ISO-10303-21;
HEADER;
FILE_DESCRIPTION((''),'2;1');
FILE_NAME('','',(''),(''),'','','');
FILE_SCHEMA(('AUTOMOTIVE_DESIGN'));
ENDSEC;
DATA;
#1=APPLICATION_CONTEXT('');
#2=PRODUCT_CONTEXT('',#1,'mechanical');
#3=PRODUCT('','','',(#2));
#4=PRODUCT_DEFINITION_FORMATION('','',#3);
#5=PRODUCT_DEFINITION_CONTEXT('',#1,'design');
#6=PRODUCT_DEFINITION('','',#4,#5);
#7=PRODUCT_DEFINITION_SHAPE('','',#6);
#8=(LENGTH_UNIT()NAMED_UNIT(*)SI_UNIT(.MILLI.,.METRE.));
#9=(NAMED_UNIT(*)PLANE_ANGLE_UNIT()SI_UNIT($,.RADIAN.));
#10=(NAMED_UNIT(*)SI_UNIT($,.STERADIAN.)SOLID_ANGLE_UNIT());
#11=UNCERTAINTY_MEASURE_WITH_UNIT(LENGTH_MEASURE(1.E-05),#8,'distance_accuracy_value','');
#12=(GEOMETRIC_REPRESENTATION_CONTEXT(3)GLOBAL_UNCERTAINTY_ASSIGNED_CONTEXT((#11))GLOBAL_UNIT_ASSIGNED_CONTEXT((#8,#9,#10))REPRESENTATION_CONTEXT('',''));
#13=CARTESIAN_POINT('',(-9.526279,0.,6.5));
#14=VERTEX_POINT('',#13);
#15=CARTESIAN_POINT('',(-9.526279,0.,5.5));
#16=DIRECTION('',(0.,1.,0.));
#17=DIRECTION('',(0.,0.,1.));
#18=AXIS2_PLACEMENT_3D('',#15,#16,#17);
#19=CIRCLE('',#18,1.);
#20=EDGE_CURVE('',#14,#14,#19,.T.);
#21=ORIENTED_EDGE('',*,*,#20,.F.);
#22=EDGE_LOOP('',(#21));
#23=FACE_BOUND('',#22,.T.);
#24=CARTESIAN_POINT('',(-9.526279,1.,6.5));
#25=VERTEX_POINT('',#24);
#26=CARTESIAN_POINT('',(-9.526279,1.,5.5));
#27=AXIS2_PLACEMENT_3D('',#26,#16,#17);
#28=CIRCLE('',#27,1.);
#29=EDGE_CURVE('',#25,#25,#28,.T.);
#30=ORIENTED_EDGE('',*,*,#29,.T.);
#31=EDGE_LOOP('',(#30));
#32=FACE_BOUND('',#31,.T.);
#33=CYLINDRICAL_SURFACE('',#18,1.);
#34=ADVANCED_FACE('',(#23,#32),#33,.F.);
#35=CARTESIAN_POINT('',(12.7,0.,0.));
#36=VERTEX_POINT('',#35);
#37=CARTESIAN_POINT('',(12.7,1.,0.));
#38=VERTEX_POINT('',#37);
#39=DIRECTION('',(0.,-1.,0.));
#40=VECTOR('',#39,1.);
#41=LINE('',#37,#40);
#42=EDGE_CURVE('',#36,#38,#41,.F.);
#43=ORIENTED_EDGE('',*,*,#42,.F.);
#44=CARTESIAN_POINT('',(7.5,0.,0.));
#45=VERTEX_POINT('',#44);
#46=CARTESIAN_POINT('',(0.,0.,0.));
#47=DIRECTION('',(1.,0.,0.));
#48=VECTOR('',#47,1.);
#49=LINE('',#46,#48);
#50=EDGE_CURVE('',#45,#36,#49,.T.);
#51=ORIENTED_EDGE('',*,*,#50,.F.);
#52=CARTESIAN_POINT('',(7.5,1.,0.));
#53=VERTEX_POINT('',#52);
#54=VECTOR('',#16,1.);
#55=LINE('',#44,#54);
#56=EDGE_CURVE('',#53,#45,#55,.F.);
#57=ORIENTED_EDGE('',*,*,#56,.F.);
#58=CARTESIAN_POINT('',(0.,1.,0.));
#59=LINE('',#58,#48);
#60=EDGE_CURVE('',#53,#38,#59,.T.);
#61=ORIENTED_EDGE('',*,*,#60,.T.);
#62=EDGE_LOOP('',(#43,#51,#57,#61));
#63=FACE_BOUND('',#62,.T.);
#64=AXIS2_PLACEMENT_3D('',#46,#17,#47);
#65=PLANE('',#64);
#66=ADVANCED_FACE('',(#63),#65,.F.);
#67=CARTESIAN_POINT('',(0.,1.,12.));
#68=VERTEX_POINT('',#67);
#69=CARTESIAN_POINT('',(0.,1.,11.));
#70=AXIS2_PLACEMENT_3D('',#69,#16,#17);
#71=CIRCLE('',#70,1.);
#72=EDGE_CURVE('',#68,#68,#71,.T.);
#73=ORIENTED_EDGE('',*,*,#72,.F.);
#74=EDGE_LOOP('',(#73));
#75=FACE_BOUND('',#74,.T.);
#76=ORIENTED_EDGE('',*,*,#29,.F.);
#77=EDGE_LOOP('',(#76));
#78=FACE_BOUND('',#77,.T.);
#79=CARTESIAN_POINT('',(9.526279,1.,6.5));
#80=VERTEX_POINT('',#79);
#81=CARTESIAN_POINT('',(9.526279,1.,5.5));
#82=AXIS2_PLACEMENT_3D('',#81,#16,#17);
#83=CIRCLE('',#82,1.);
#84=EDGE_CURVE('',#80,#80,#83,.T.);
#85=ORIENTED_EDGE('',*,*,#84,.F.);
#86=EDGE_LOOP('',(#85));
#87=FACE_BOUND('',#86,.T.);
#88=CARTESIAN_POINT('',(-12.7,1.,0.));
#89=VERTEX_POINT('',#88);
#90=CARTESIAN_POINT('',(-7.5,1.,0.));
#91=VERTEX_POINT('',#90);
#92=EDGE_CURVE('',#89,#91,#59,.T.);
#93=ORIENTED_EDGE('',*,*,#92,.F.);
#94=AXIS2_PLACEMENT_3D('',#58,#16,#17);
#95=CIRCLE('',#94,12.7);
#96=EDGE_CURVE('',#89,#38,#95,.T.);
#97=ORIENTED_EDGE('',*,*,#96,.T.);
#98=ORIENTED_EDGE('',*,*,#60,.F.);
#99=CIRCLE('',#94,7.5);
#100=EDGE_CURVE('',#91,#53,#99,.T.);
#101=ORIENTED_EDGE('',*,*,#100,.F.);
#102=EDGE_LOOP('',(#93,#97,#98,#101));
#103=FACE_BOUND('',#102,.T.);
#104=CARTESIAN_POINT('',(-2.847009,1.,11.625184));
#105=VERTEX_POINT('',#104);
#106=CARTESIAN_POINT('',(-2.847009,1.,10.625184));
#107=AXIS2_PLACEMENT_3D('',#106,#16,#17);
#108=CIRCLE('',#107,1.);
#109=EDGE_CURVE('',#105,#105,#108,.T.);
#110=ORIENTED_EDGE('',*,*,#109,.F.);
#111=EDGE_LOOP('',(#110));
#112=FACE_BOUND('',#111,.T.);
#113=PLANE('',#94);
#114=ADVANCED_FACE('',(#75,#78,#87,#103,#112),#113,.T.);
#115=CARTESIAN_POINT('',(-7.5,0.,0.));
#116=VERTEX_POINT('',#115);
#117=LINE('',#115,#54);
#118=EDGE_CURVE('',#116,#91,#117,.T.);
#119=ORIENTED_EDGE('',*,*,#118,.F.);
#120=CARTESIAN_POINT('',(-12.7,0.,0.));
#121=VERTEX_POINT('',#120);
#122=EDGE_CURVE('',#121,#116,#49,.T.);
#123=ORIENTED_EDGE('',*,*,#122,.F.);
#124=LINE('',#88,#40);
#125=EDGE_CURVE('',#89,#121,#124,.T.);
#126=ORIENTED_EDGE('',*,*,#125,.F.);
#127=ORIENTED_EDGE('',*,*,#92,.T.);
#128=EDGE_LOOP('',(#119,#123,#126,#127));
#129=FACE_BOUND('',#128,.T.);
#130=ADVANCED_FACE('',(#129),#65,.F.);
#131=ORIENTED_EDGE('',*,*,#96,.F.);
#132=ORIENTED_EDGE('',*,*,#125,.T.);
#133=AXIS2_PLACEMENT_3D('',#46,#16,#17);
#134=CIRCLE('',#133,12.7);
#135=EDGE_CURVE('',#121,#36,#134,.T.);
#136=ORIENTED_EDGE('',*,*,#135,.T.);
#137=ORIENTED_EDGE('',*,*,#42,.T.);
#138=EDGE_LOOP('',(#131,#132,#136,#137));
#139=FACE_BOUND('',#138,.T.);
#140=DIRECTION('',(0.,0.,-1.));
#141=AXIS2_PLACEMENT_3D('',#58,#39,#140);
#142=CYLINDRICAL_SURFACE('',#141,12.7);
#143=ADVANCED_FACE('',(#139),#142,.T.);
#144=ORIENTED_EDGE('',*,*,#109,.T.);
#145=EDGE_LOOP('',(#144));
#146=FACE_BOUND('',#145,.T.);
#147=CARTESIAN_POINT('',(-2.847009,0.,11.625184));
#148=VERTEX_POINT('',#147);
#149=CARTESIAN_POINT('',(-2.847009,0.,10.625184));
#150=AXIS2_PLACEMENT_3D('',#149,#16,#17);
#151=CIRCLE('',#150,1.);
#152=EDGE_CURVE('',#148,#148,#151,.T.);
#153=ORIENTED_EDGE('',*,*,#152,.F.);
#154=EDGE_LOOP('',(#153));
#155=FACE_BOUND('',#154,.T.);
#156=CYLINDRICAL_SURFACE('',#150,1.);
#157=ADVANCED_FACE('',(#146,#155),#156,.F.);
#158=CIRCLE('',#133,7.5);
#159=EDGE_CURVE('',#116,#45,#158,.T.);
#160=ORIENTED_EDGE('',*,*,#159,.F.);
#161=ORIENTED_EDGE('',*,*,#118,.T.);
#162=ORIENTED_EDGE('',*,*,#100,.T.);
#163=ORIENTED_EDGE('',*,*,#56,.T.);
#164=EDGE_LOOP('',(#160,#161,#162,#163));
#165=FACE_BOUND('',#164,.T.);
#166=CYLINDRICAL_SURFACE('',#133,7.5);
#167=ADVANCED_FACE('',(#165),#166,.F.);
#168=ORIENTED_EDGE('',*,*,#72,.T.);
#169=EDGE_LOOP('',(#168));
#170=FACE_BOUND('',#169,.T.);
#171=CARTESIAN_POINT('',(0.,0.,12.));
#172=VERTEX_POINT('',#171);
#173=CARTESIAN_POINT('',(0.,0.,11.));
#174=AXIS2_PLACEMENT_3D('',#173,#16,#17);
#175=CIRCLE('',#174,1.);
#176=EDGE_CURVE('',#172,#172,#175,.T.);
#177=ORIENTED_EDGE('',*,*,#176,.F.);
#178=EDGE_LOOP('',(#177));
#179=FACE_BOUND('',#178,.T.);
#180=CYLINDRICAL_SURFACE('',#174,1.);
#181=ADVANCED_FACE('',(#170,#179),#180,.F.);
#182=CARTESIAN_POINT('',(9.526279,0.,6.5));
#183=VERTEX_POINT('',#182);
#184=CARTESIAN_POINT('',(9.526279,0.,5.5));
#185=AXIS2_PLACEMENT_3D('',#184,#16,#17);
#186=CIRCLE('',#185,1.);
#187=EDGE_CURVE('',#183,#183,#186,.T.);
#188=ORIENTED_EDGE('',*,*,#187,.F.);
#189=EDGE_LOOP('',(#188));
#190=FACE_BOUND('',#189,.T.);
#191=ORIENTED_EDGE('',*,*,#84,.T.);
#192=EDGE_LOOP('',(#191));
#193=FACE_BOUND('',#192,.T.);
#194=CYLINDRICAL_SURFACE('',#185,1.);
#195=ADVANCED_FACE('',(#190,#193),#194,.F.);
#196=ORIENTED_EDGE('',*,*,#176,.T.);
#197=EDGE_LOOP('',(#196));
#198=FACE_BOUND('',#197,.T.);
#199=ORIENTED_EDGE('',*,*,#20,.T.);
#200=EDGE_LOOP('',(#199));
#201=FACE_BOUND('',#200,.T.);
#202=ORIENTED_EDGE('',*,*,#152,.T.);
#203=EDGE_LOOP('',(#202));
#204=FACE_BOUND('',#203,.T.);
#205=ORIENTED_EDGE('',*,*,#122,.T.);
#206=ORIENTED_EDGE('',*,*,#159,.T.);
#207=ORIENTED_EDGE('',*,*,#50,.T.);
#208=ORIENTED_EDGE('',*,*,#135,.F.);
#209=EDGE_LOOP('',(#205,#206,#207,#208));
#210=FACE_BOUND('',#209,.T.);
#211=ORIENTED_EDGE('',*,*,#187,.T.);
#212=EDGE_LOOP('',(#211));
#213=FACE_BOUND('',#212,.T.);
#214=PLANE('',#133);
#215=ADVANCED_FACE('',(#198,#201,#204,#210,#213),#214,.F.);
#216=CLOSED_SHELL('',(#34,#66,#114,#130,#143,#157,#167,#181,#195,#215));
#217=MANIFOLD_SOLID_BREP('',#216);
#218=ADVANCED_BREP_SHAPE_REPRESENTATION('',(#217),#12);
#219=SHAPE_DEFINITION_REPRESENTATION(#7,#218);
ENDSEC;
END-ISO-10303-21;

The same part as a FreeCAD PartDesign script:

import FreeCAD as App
import Part
import Sketcher

doc = App.newDocument("Part")
body = doc.addObject("PartDesign::Body", "Body")

sketch1 = body.newObject("Sketcher::SketchObject", "Sketch")
sketch1.AttachmentSupport = (doc.getObject("XZ_Plane"), [""])
sketch1.MapMode = "FlatFace"
sketch1.addGeometry(Part.Circle(App.Vector(0, 0, 0), App.Vector(0, 0, 1), 12.7), False)
sketch1.addConstraint([
    Sketcher.Constraint("Coincident", 0, 3, -1, 1),
    Sketcher.Constraint("Diameter", 0, 25.4),
])
pad1 = body.newObject("PartDesign::Pad", "Pad")
pad1.Profile = sketch1
pad1.Length = 1
pad1.Reversed = True

sketch2 = body.newObject("Sketcher::SketchObject", "Sketch001")
sketch2.AttachmentSupport = (doc.getObject("XZ_Plane"), [""])
sketch2.MapMode = "FlatFace"
sketch2.AttachmentOffset = App.Placement(App.Vector(0, 0, -1), App.Rotation())
sketch2.addGeometry([
    Part.Circle(App.Vector(0, -11, 0), App.Vector(0, 0, 1), 1),
    Part.Circle(App.Vector(9.526279, -5.5, 0), App.Vector(0, 0, 1), 1),
    Part.Circle(App.Vector(9.526279, 5.5, 0), App.Vector(0, 0, 1), 1),
    Part.Circle(App.Vector(0, 11, 0), App.Vector(0, 0, 1), 1),
    Part.Circle(App.Vector(-9.526279, 5.5, 0), App.Vector(0, 0, 1), 1),
    Part.Circle(App.Vector(-9.526279, -5.5, 0), App.Vector(0, 0, 1), 1),
], False)
sketch2.addConstraint([
    Sketcher.Constraint("Equal", 0, 1),
    Sketcher.Constraint("Equal", 1, 2),
    Sketcher.Constraint("Equal", 2, 3),
    Sketcher.Constraint("Equal", 3, 4),
    Sketcher.Constraint("Equal", 4, 5),
    Sketcher.Constraint("Symmetric", 0, 3, 3, 3, -1, 1),
    Sketcher.Constraint("Symmetric", 1, 3, 4, 3, -1, 1),
    Sketcher.Constraint("Symmetric", 2, 3, 5, 3, -1, 1),
    Sketcher.Constraint("Symmetric", 2, 3, 4, 3, -2),
    Sketcher.Constraint("PointOnObject", 0, 3, -2),
    Sketcher.Constraint("Diameter", 0, 2.0),
    Sketcher.Constraint("DistanceY", 0, 3, -1, 1, 11.0),
    Sketcher.Constraint("DistanceY", 1, 3, 2, 3, 11.0),
    Sketcher.Constraint("DistanceX", -1, 1, 1, 3, 9.526279),
])
pocket1 = body.newObject("PartDesign::Pocket", "Pocket")
pocket1.Profile = sketch2
pocket1.Type = "ThroughAll"
pocket1.Midplane = True

sketch3 = body.newObject("Sketcher::SketchObject", "Sketch002")
sketch3.AttachmentSupport = (doc.getObject("XZ_Plane"), [""])
sketch3.MapMode = "FlatFace"
sketch3.AttachmentOffset = App.Placement(App.Vector(0, 0, -1), App.Rotation())
sketch3.addGeometry(Part.Circle(App.Vector(0, 0, 0), App.Vector(0, 0, 1), 7.5), False)
sketch3.addConstraint([
    Sketcher.Constraint("Coincident", 0, 3, -1, 1),
    Sketcher.Constraint("Diameter", 0, 15.0),
])
pocket2 = body.newObject("PartDesign::Pocket", "Pocket001")
pocket2.Profile = sketch3
pocket2.Type = "ThroughAll"
pocket2.Midplane = True

sketch4 = body.newObject("Sketcher::SketchObject", "Sketch003")
sketch4.AttachmentSupport = (doc.getObject("XY_Plane"), [""])
sketch4.MapMode = "FlatFace"
sketch4.addGeometry([
    Part.LineSegment(App.Vector(-36.753256, 32.311284, 0), App.Vector(-36.753256, -19.66799, 0)),
    Part.LineSegment(App.Vector(-36.753256, -19.66799, 0), App.Vector(29.120947, -19.66799, 0)),
    Part.LineSegment(App.Vector(29.120947, -19.66799, 0), App.Vector(29.120947, 32.311284, 0)),
    Part.LineSegment(App.Vector(29.120947, 32.311284, 0), App.Vector(-36.753256, 32.311284, 0)),
], False)
sketch4.addConstraint([
    Sketcher.Constraint("Coincident", 0, 2, 1, 1),
    Sketcher.Constraint("Coincident", 1, 2, 2, 1),
    Sketcher.Constraint("Coincident", 2, 2, 3, 1),
    Sketcher.Constraint("Coincident", 3, 2, 0, 1),
    Sketcher.Constraint("Vertical", 0),
    Sketcher.Constraint("Horizontal", 1),
    Sketcher.Constraint("Vertical", 2),
    Sketcher.Constraint("Horizontal", 3),
    Sketcher.Constraint("DistanceX", 1, 1, 1, 2, 65.874202),
    Sketcher.Constraint("DistanceY", 0, 2, 0, 1, 51.979274),
    Sketcher.Constraint("DistanceY", 0, 2, -1, 1, 19.66799),
    Sketcher.Constraint("DistanceX", 0, 2, -1, 1, 36.753256),
])
pocket3 = body.newObject("PartDesign::Pocket", "Pocket002")
pocket3.Profile = sketch4
pocket3.Type = "ThroughAll"

sketch5 = body.newObject("Sketcher::SketchObject", "Sketch004")
sketch5.AttachmentSupport = (doc.getObject("XZ_Plane"), [""])
sketch5.MapMode = "FlatFace"
sketch5.AttachmentOffset = App.Placement(App.Vector(0, 0, -1), App.Rotation())
sketch5.addGeometry(Part.Circle(App.Vector(-2.847009, 10.625184, 0), App.Vector(0, 0, 1), 1), False)
sketch5.addConstraint([
    Sketcher.Constraint("Diameter", 0, 2.0),
    Sketcher.Constraint("DistanceX", 0, 3, -1, 1, 2.847009),
    Sketcher.Constraint("DistanceY", -1, 1, 0, 3, 10.625184),
])
pocket4 = body.newObject("PartDesign::Pocket", "Pocket003")
pocket4.Profile = sketch5
pocket4.Type = "ThroughAll"
pocket4.Midplane = True

doc.recompute()
